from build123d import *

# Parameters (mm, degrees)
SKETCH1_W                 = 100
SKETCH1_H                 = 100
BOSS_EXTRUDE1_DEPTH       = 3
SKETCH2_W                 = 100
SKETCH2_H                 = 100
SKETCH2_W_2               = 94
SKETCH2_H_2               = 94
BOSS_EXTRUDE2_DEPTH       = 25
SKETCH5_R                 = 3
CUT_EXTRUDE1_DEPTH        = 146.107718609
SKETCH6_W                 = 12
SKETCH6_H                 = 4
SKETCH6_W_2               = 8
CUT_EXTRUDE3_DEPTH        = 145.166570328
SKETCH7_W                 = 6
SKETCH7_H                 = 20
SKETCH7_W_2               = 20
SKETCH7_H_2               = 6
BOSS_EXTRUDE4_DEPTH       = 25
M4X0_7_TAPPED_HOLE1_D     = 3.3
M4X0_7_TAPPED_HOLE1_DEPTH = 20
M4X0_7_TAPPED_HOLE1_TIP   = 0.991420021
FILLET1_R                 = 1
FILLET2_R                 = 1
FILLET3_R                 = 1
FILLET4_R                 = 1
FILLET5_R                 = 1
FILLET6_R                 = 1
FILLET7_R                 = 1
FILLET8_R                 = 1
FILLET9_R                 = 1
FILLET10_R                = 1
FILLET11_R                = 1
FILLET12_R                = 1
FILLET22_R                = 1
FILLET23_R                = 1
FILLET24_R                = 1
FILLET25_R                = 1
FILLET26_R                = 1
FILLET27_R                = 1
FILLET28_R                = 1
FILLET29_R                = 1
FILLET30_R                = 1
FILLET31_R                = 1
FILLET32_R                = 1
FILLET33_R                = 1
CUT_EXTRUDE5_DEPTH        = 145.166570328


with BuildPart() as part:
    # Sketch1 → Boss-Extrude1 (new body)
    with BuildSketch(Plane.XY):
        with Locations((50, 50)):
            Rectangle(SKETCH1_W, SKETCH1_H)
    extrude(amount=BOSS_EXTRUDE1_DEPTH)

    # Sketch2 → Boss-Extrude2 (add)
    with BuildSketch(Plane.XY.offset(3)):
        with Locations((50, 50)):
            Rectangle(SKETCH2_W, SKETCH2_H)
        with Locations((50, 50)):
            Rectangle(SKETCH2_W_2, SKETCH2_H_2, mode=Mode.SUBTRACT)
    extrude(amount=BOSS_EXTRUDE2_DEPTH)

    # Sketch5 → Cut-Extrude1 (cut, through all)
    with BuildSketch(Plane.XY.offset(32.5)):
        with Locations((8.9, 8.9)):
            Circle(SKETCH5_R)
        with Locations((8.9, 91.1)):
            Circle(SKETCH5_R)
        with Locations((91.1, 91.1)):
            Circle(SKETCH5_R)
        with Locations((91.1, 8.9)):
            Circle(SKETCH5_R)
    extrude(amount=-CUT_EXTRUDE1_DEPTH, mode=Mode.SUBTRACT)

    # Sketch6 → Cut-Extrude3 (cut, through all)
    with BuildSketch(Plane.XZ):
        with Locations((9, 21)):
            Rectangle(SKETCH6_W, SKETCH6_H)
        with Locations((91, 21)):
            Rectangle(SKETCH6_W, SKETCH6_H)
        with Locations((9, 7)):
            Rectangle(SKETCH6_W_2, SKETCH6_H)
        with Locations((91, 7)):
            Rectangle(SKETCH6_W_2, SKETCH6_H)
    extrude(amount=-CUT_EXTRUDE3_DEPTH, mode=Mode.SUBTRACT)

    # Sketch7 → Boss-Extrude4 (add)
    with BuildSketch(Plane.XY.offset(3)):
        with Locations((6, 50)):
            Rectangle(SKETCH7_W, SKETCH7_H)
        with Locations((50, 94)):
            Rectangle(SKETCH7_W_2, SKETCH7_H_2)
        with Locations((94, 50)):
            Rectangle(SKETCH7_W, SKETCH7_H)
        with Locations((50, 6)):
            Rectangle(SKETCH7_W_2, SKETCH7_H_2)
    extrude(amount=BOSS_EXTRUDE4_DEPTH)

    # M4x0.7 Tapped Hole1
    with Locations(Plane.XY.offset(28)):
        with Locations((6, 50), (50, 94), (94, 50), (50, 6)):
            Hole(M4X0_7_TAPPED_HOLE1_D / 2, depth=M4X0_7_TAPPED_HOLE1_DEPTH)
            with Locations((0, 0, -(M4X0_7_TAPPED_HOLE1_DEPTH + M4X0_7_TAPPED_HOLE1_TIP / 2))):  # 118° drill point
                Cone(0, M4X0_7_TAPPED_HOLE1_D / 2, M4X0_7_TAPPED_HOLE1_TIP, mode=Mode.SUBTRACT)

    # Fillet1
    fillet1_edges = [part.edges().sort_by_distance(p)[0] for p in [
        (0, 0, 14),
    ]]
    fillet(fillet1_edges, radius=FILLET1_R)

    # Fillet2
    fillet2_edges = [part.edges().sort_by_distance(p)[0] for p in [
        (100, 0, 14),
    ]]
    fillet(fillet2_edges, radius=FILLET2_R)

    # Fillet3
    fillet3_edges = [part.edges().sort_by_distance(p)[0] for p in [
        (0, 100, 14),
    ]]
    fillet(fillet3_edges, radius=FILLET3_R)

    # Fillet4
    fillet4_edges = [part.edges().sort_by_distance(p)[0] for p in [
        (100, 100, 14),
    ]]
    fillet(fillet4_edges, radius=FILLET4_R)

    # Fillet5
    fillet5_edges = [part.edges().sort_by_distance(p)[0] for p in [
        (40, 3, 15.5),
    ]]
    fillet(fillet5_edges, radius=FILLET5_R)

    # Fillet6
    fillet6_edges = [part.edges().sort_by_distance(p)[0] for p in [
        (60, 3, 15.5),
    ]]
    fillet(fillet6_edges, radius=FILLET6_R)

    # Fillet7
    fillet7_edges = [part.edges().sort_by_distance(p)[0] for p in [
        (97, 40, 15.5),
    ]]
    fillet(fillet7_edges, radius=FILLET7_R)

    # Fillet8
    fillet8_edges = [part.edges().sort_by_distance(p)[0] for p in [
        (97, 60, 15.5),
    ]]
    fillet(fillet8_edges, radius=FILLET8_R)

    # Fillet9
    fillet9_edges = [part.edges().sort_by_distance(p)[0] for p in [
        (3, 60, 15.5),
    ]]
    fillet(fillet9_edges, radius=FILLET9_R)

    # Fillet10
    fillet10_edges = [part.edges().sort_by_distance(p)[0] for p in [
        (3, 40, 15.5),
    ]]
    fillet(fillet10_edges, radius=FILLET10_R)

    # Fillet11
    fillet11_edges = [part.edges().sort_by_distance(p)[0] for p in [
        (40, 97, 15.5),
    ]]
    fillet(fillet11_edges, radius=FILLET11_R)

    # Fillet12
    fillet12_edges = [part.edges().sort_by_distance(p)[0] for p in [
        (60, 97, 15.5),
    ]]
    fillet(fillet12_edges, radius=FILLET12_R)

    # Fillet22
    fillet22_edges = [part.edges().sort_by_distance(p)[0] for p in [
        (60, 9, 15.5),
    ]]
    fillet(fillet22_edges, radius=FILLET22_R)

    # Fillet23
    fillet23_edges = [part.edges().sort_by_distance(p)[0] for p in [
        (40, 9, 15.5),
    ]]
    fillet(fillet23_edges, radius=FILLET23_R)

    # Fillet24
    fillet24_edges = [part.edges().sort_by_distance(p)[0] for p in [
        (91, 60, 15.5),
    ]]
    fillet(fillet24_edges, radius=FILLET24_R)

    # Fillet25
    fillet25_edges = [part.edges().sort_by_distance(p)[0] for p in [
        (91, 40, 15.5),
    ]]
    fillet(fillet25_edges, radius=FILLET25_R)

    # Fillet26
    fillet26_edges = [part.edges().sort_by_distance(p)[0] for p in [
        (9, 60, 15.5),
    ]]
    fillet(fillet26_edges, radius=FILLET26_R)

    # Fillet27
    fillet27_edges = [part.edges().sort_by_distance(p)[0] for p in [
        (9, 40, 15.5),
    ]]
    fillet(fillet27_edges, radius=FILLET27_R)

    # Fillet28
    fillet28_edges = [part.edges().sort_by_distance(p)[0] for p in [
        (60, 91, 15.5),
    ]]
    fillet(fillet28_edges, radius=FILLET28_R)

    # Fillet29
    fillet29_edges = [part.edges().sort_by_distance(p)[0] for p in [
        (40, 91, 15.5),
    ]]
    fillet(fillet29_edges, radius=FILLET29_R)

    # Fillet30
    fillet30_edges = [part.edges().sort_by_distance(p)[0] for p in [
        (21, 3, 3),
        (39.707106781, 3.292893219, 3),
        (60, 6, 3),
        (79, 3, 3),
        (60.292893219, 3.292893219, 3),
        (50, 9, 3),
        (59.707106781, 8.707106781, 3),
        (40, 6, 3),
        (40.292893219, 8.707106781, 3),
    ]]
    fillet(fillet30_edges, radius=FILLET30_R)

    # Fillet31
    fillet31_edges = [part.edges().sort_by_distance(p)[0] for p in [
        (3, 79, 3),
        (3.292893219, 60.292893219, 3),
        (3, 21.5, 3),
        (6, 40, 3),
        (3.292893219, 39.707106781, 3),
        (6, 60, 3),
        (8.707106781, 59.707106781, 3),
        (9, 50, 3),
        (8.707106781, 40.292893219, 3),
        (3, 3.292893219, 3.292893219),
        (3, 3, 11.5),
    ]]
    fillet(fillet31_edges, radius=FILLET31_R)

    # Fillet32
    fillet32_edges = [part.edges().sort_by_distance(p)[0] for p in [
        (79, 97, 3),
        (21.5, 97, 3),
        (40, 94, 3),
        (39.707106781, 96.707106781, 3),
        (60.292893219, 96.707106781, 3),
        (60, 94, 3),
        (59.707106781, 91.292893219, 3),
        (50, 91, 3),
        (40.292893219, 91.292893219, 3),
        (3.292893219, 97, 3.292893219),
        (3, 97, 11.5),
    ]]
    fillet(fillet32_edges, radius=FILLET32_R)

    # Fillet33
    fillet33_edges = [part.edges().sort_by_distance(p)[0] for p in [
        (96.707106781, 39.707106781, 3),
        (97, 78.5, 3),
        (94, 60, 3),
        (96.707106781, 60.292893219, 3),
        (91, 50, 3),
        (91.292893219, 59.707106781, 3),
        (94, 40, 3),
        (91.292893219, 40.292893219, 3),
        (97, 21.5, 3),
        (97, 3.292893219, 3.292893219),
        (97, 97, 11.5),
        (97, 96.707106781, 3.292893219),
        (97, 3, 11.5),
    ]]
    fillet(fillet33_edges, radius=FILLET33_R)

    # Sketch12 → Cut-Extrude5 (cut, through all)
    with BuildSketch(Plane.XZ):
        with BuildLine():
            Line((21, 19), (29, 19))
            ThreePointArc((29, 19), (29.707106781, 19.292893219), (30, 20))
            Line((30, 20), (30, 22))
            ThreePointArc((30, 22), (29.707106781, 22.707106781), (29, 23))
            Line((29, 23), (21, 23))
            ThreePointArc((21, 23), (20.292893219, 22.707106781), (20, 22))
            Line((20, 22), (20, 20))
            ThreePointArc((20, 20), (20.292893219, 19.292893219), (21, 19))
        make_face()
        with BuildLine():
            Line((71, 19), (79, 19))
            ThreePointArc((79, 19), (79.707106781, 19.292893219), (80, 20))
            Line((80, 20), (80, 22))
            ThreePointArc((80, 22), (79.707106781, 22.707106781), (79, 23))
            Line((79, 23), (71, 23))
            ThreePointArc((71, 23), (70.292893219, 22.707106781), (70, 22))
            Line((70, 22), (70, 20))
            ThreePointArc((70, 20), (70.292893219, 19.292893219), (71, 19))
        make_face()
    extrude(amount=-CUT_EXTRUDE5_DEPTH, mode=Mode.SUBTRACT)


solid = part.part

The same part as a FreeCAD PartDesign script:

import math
import FreeCAD as App
import Part
import Sketcher

V = App.Vector
Q = App.Units.Quantity


def edges_at(feature, points):
    """Names of the edges that pass closest to the given points."""
    edges = feature.Shape.Edges
    near = lambda p: min(range(len(edges)), key=lambda i: edges[i].distToShape(Part.Vertex(*p))[0])
    return sorted({f"Edge{near(p) + 1}" for p in points})

doc = App.newDocument("Part")
body = doc.addObject("PartDesign::Body", "Body")

# Sketch on XY plane
sketch1 = doc.addObject("Sketcher::SketchObject", "Sketch")
body.addObject(sketch1)
sketch1.AttachmentSupport = (doc.XY_Plane, [""])
sketch1.MapMode = "FlatFace"
sketch1.addGeometry([
    Part.LineSegment(V(0, 100, 0), V(0, 0, 0)),
    Part.LineSegment(V(0, 0, 0), V(100, 0, 0)),
    Part.LineSegment(V(100, 0, 0), V(100, 100, 0)),
    Part.LineSegment(V(100, 100, 0), V(0, 100, 0)),
], False)
sketch1.addConstraint([
    Sketcher.Constraint("Coincident", 0, 2, 1, 1),
    Sketcher.Constraint("Coincident", 1, 2, 2, 1),
    Sketcher.Constraint("Coincident", 2, 2, 3, 1),
    Sketcher.Constraint("Coincident", 3, 2, 0, 1),
    Sketcher.Constraint("Vertical", 0),
    Sketcher.Constraint("Horizontal", 1),
    Sketcher.Constraint("Vertical", 2),
    Sketcher.Constraint("Horizontal", 3),
    Sketcher.Constraint("Coincident", 0, 2, -1, 1),
    Sketcher.Constraint("Equal", 3, 0),
    Sketcher.Constraint("DistanceX", 1, 1, 1, 2, Q("100 mm")),
])
pad1 = doc.addObject("PartDesign::Pad", "Pad")
body.addObject(pad1)
pad1.Profile = sketch1
pad1.Length = 3

# Sketch on XY plane
sketch2 = doc.addObject("Sketcher::SketchObject", "Sketch001")
body.addObject(sketch2)
sketch2.AttachmentSupport = (doc.XY_Plane, [""])
sketch2.MapMode = "FlatFace"
sketch2.AttachmentOffset = App.Placement(V(0, 0, 3), App.Rotation())
sketch2.addGeometry([
    Part.LineSegment(V(0, 100, 0), V(0, 0, 0)),  # 0
    Part.LineSegment(V(0, 0, 0), V(100, 0, 0)),  # 1
    Part.LineSegment(V(100, 0, 0), V(100, 100, 0)),  # 2
    Part.LineSegment(V(100, 100, 0), V(0, 100, 0)),  # 3
    Part.LineSegment(V(97, 3, 0), V(3, 3, 0)),  # 4
    Part.LineSegment(V(3, 3, 0), V(3, 97, 0)),  # 5
    Part.LineSegment(V(3, 97, 0), V(97, 97, 0)),  # 6
    Part.LineSegment(V(97, 97, 0), V(97, 3, 0)),  # 7
], False)
sketch2.addConstraint([
    Sketcher.Constraint("Coincident", 0, 2, 1, 1),
    Sketcher.Constraint("Coincident", 1, 2, 2, 1),
    Sketcher.Constraint("Coincident", 2, 2, 3, 1),
    Sketcher.Constraint("Coincident", 3, 2, 0, 1),
    Sketcher.Constraint("Coincident", 4, 2, 5, 1),
    Sketcher.Constraint("Coincident", 5, 2, 6, 1),
    Sketcher.Constraint("Coincident", 6, 2, 7, 1),
    Sketcher.Constraint("Coincident", 7, 2, 4, 1),
    Sketcher.Constraint("Vertical", 0),
    Sketcher.Constraint("Horizontal", 1),
    Sketcher.Constraint("Vertical", 2),
    Sketcher.Constraint("Horizontal", 3),
    Sketcher.Constraint("Horizontal", 4),
    Sketcher.Constraint("Vertical", 5),
    Sketcher.Constraint("Horizontal", 6),
    Sketcher.Constraint("Vertical", 7),
    Sketcher.Constraint("Coincident", 0, 2, -1, 1),
    Sketcher.Constraint("Equal", 3, 0),
    Sketcher.Constraint("Equal", 6, 5),
    Sketcher.Constraint("DistanceX", 1, 1, 1, 2, Q("100 mm")),
    Sketcher.Constraint("DistanceX", 4, 2, 4, 1, Q("94 mm")),
    Sketcher.Constraint("DistanceX", -1, 1, 4, 2, Q("3 mm")),
    Sketcher.Constraint("DistanceY", -1, 1, 4, 2, Q("3 mm")),
])
pad2 = doc.addObject("PartDesign::Pad", "Pad001")
body.addObject(pad2)
pad2.Profile = sketch2
pad2.Length = 25

# Sketch on XY plane
sketch3 = doc.addObject("Sketcher::SketchObject", "Sketch002")
body.addObject(sketch3)
sketch3.AttachmentSupport = (doc.XY_Plane, [""])
sketch3.MapMode = "FlatFace"
sketch3.AttachmentOffset = App.Placement(V(0, 0, 32.5), App.Rotation())
sketch3.addGeometry([
    Part.Circle(V(8.9, 8.9, 0), V(0, 0, 1), 3),
    Part.Circle(V(8.9, 91.1, 0), V(0, 0, 1), 3),
    Part.Circle(V(91.1, 91.1, 0), V(0, 0, 1), 3),
    Part.Circle(V(91.1, 8.9, 0), V(0, 0, 1), 3),
], False)
sketch3.addConstraint([
    Sketcher.Constraint("Equal", 0, 1),
    Sketcher.Constraint("Equal", 1, 2),
    Sketcher.Constraint("Equal", 2, 3),
    Sketcher.Constraint("Horizontal", 1, 3, 2, 3),
    Sketcher.Constraint("Horizontal", 0, 3, 3, 3),
    Sketcher.Constraint("Vertical", 0, 3, 1, 3),
    Sketcher.Constraint("Vertical", 2, 3, 3, 3),
    Sketcher.Constraint("Diameter", 0, Q("6 mm")),
    Sketcher.Constraint("DistanceX", -1, 1, 0, 3, Q("8.9 mm")),
    Sketcher.Constraint("DistanceY", -1, 1, 0, 3, Q("8.9 mm")),
    Sketcher.Constraint("DistanceY", -1, 1, 1, 3, Q("91.1 mm")),
    Sketcher.Constraint("DistanceX", -1, 1, 2, 3, Q("91.1 mm")),
])
pocket1 = doc.addObject("PartDesign::Pocket", "Pocket")
body.addObject(pocket1)
pocket1.Profile = sketch3
pocket1.Type = "ThroughAll"

# Sketch on XZ plane
sketch4 = doc.addObject("Sketcher::SketchObject", "Sketch003")
body.addObject(sketch4)
sketch4.AttachmentSupport = (doc.XZ_Plane, [""])
sketch4.MapMode = "FlatFace"
sketch4.addGeometry([
    Part.LineSegment(V(3, 23, 0), V(3, 19, 0)),  # 0
    Part.LineSegment(V(3, 19, 0), V(15, 19, 0)),  # 1
    Part.LineSegment(V(15, 19, 0), V(15, 23, 0)),  # 2
    Part.LineSegment(V(15, 23, 0), V(3, 23, 0)),  # 3
    Part.LineSegment(V(85, 23, 0), V(85, 19, 0)),  # 4
    Part.LineSegment(V(85, 19, 0), V(97, 19, 0)),  # 5
    Part.LineSegment(V(97, 19, 0), V(97, 23, 0)),  # 6
    Part.LineSegment(V(97, 23, 0), V(85, 23, 0)),  # 7
    Part.LineSegment(V(5, 9, 0), V(5, 5, 0)),  # 8
    Part.LineSegment(V(5, 5, 0), V(13, 5, 0)),  # 9
    Part.LineSegment(V(13, 5, 0), V(13, 9, 0)),  # 10
    Part.LineSegment(V(13, 9, 0), V(5, 9, 0)),  # 11
    Part.LineSegment(V(87, 9, 0), V(87, 5, 0)),  # 12
    Part.LineSegment(V(87, 5, 0), V(95, 5, 0)),  # 13
    Part.LineSegment(V(95, 5, 0), V(95, 9, 0)),  # 14
    Part.LineSegment(V(95, 9, 0), V(87, 9, 0)),  # 15
], False)
sketch4.addConstraint([
    Sketcher.Constraint("Coincident", 0, 2, 1, 1),
    Sketcher.Constraint("Coincident", 1, 2, 2, 1),
    Sketcher.Constraint("Coincident", 2, 2, 3, 1),
    Sketcher.Constraint("Coincident", 3, 2, 0, 1),
    Sketcher.Constraint("Coincident", 4, 2, 5, 1),
    Sketcher.Constraint("Coincident", 5, 2, 6, 1),
    Sketcher.Constraint("Coincident", 6, 2, 7, 1),
    Sketcher.Constraint("Coincident", 7, 2, 4, 1),
    Sketcher.Constraint("Coincident", 8, 2, 9, 1),
    Sketcher.Constraint("Coincident", 9, 2, 10, 1),
    Sketcher.Constraint("Coincident", 10, 2, 11, 1),
    Sketcher.Constraint("Coincident", 11, 2, 8, 1),
    Sketcher.Constraint("Coincident", 12, 2, 13, 1),
    Sketcher.Constraint("Coincident", 13, 2, 14, 1),
    Sketcher.Constraint("Coincident", 14, 2, 15, 1),
    Sketcher.Constraint("Coincident", 15, 2, 12, 1),
    Sketcher.Constraint("Vertical", 0),
    Sketcher.Constraint("Horizontal", 1),
    Sketcher.Constraint("Vertical", 2),
    Sketcher.Constraint("Horizontal", 3),
    Sketcher.Constraint("Vertical", 4),
    Sketcher.Constraint("Horizontal", 5),
    Sketcher.Constraint("Vertical", 6),
    Sketcher.Constraint("Horizontal", 7),
    Sketcher.Constraint("Vertical", 8),
    Sketcher.Constraint("Horizontal", 9),
    Sketcher.Constraint("Vertical", 10),
    Sketcher.Constraint("Horizontal", 11),
    Sketcher.Constraint("Vertical", 12),
    Sketcher.Constraint("Horizontal", 13),
    Sketcher.Constraint("Vertical", 14),
    Sketcher.Constraint("Horizontal", 15),
    Sketcher.Constraint("Horizontal", 1, 2, 4, 2),
    Sketcher.Constraint("Horizontal", 3, 2, 6, 2),
    Sketcher.Constraint("Horizontal", 9, 2, 12, 2),
    Sketcher.Constraint("Horizontal", 11, 2, 14, 2),
    Sketcher.Constraint("Equal", 3, 5),
    Sketcher.Constraint("Equal", 11, 13),
    Sketcher.Constraint("Equal", 6, 8),
    Sketcher.Constraint("DistanceX", 1, 1, 1, 2, Q("12 mm")),
    Sketcher.Constraint("DistanceX", 9, 1, 9, 2, Q("8 mm")),
    Sketcher.Constraint("DistanceY", 0, 2, 0, 1, Q("4 mm")),
    Sketcher.Constraint("DistanceX", -1, 1, 0, 2, Q("3 mm")),
    Sketcher.Constraint("DistanceY", -1, 1, 0, 2, Q("19 mm")),
    Sketcher.Constraint("DistanceX", -1, 1, 4, 2, Q("85 mm")),
    Sketcher.Constraint("DistanceX", -1, 1, 8, 2, Q("5 mm")),
    Sketcher.Constraint("DistanceY", -1, 1, 8, 2, Q("5 mm")),
    Sketcher.Constraint("DistanceX", -1, 1, 12, 2, Q("87 mm")),
])
pocket2 = doc.addObject("PartDesign::Pocket", "Pocket001")
body.addObject(pocket2)
pocket2.Profile = sketch4
pocket2.Type = "ThroughAll"

# Sketch on XY plane
sketch5 = doc.addObject("Sketcher::SketchObject", "Sketch004")
body.addObject(sketch5)
sketch5.AttachmentSupport = (doc.XY_Plane, [""])
sketch5.MapMode = "FlatFace"
sketch5.AttachmentOffset = App.Placement(V(0, 0, 3), App.Rotation())
sketch5.addGeometry([
    Part.LineSegment(V(3, 60, 0), V(3, 40, 0)),  # 0
    Part.LineSegment(V(3, 40, 0), V(9, 40, 0)),  # 1
    Part.LineSegment(V(9, 40, 0), V(9, 60, 0)),  # 2
    Part.LineSegment(V(9, 60, 0), V(3, 60, 0)),  # 3
    Part.LineSegment(V(40, 97, 0), V(40, 91, 0)),  # 4
    Part.LineSegment(V(40, 91, 0), V(60, 91, 0)),  # 5
    Part.LineSegment(V(60, 91, 0), V(60, 97, 0)),  # 6
    Part.LineSegment(V(60, 97, 0), V(40, 97, 0)),  # 7
    Part.LineSegment(V(91, 60, 0), V(91, 40, 0)),  # 8
    Part.LineSegment(V(91, 40, 0), V(97, 40, 0)),  # 9
    Part.LineSegment(V(97, 40, 0), V(97, 60, 0)),  # 10
    Part.LineSegment(V(97, 60, 0), V(91, 60, 0)),  # 11
    Part.LineSegment(V(40, 9, 0), V(40, 3, 0)),  # 12
    Part.LineSegment(V(40, 3, 0), V(60, 3, 0)),  # 13
    Part.LineSegment(V(60, 3, 0), V(60, 9, 0)),  # 14
    Part.LineSegment(V(60, 9, 0), V(40, 9, 0)),  # 15
], False)
sketch5.addConstraint([
    Sketcher.Constraint("Coincident", 0, 2, 1, 1),
    Sketcher.Constraint("Coincident", 1, 2, 2, 1),
    Sketcher.Constraint("Coincident", 2, 2, 3, 1),
    Sketcher.Constraint("Coincident", 3, 2, 0, 1),
    Sketcher.Constraint("Coincident", 4, 2, 5, 1),
    Sketcher.Constraint("Coincident", 5, 2, 6, 1),
    Sketcher.Constraint("Coincident", 6, 2, 7, 1),
    Sketcher.Constraint("Coincident", 7, 2, 4, 1),
    Sketcher.Constraint("Coincident", 8, 2, 9, 1),
    Sketcher.Constraint("Coincident", 9, 2, 10, 1),
    Sketcher.Constraint("Coincident", 10, 2, 11, 1),
    Sketcher.Constraint("Coincident", 11, 2, 8, 1),
    Sketcher.Constraint("Coincident", 12, 2, 13, 1),
    Sketcher.Constraint("Coincident", 13, 2, 14, 1),
    Sketcher.Constraint("Coincident", 14, 2, 15, 1),
    Sketcher.Constraint("Coincident", 15, 2, 12, 1),
    Sketcher.Constraint("Vertical", 0),
    Sketcher.Constraint("Horizontal", 1),
    Sketcher.Constraint("Vertical", 2),
    Sketcher.Constraint("Horizontal", 3),
    Sketcher.Constraint("Vertical", 4),
    Sketcher.Constraint("Horizontal", 5),
    Sketcher.Constraint("Vertical", 6),
    Sketcher.Constraint("Horizontal", 7),
    Sketcher.Constraint("Vertical", 8),
    Sketcher.Constraint("Horizontal", 9),
    Sketcher.Constraint("Vertical", 10),
    Sketcher.Constraint("Horizontal", 11),
    Sketcher.Constraint("Vertical", 12),
    Sketcher.Constraint("Horizontal", 13),
    Sketcher.Constraint("Vertical", 14),
    Sketcher.Constraint("Horizontal", 15),
    Sketcher.Constraint("Horizontal", 1, 2, 8, 2),
    Sketcher.Constraint("Horizontal", 3, 2, 10, 2),
    Sketcher.Constraint("Vertical", 7, 2, 12, 2),
    Sketcher.Constraint("Vertical", 6, 2, 13, 2),
    Sketcher.Constraint("Equal", 3, 9),
    Sketcher.Constraint("Equal", 15, 0),
    Sketcher.Constraint("Equal", 11, 4),
    Sketcher.Constraint("Equal", 6, 12),
    Sketcher.Constraint("DistanceX", 1, 1, 1, 2, Q("6 mm")),
    Sketcher.Constraint("DistanceX", 5, 1, 5, 2, Q("20 mm")),
    Sketcher.Constraint("DistanceX", -1, 1, 0, 2, Q("3 mm")),
    Sketcher.Constraint("DistanceY", -1, 1, 0, 2, Q("40 mm")),
    Sketcher.Constraint("DistanceX", -1, 1, 4, 2, Q("40 mm")),
    Sketcher.Constraint("DistanceY", -1, 1, 4, 2, Q("91 mm")),
    Sketcher.Constraint("DistanceX", -1, 1, 8, 2, Q("91 mm")),
    Sketcher.Constraint("DistanceY", -1, 1, 12, 2, Q("3 mm")),
])
pad3 = doc.addObject("PartDesign::Pad", "Pad002")
body.addObject(pad3)
pad3.Profile = sketch5
pad3.Length = 25

# Sketch on XY plane
sketch6 = doc.addObject("Sketcher::SketchObject", "Sketch005")
body.addObject(sketch6)
sketch6.AttachmentSupport = (doc.XY_Plane, [""])
sketch6.MapMode = "FlatFace"
sketch6.AttachmentOffset = App.Placement(V(0, 0, 28), App.Rotation())
sketch6.addGeometry([
    Part.Circle(V(6, 50, 0), V(0, 0, 1), 1.6),
    Part.Circle(V(50, 94, 0), V(0, 0, 1), 1.6),
    Part.Circle(V(94, 50, 0), V(0, 0, 1), 1.6),
    Part.Circle(V(50, 6, 0), V(0, 0, 1), 1.6),
], False)
sketch6.addConstraint([
    Sketcher.Constraint("Equal", 0, 1),
    Sketcher.Constraint("Equal", 1, 2),
    Sketcher.Constraint("Equal", 2, 3),
    Sketcher.Constraint("Horizontal", 0, 3, 2, 3),
    Sketcher.Constraint("Vertical", 1, 3, 3, 3),
    Sketcher.Constraint("Diameter", 0, Q("3.3 mm")),
    Sketcher.Constraint("DistanceX", -1, 1, 0, 3, Q("6 mm")),
    Sketcher.Constraint("DistanceY", -1, 1, 0, 3, Q("50 mm")),
    Sketcher.Constraint("DistanceX", -1, 1, 1, 3, Q("50 mm")),
    Sketcher.Constraint("DistanceY", -1, 1, 1, 3, Q("94 mm")),
    Sketcher.Constraint("DistanceX", -1, 1, 2, 3, Q("94 mm")),
    Sketcher.Constraint("DistanceY", -1, 1, 3, 3, Q("6 mm")),
])
doc.recompute()
hole = doc.addObject("PartDesign::Hole", "Hole")
body.addObject(hole)
hole.Profile = sketch6
hole.ThreadType = "None"
hole.Diameter = 3.3
hole.DepthType = "Dimension"
hole.Depth = 20
hole.DrillPoint = "Angled"
hole.DrillPointAngle = 118
doc.recompute()

fillet = doc.addObject("PartDesign::Fillet", "Fillet")
body.addObject(fillet)
fillet.Base = (hole, edges_at(hole, [(0, 0, 14)]))
fillet.Radius = 1
doc.recompute()

fillet2 = doc.addObject("PartDesign::Fillet", "Fillet001")
body.addObject(fillet2)
fillet2.Base = (fillet, edges_at(fillet, [(100, 0, 14)]))
fillet2.Radius = 1
doc.recompute()

fillet3 = doc.addObject("PartDesign::Fillet", "Fillet002")
body.addObject(fillet3)
fillet3.Base = (fillet2, edges_at(fillet2, [(0, 100, 14)]))
fillet3.Radius = 1
doc.recompute()

fillet4 = doc.addObject("PartDesign::Fillet", "Fillet003")
body.addObject(fillet4)
fillet4.Base = (fillet3, edges_at(fillet3, [(100, 100, 14)]))
fillet4.Radius = 1
doc.recompute()

fillet5 = doc.addObject("PartDesign::Fillet", "Fillet004")
body.addObject(fillet5)
fillet5.Base = (fillet4, edges_at(fillet4, [(40, 3, 15.5)]))
fillet5.Radius = 1
doc.recompute()

fillet6 = doc.addObject("PartDesign::Fillet", "Fillet005")
body.addObject(fillet6)
fillet6.Base = (fillet5, edges_at(fillet5, [(60, 3, 15.5)]))
fillet6.Radius = 1
doc.recompute()

fillet7 = doc.addObject("PartDesign::Fillet", "Fillet006")
body.addObject(fillet7)
fillet7.Base = (fillet6, edges_at(fillet6, [(97, 40, 15.5)]))
fillet7.Radius = 1
doc.recompute()

fillet8 = doc.addObject("PartDesign::Fillet", "Fillet007")
body.addObject(fillet8)
fillet8.Base = (fillet7, edges_at(fillet7, [(97, 60, 15.5)]))
fillet8.Radius = 1
doc.recompute()

fillet9 = doc.addObject("PartDesign::Fillet", "Fillet008")
body.addObject(fillet9)
fillet9.Base = (fillet8, edges_at(fillet8, [(3, 60, 15.5)]))
fillet9.Radius = 1
doc.recompute()

fillet10 = doc.addObject("PartDesign::Fillet", "Fillet009")
body.addObject(fillet10)
fillet10.Base = (fillet9, edges_at(fillet9, [(3, 40, 15.5)]))
fillet10.Radius = 1
doc.recompute()

fillet11 = doc.addObject("PartDesign::Fillet", "Fillet010")
body.addObject(fillet11)
fillet11.Base = (fillet10, edges_at(fillet10, [(40, 97, 15.5)]))
fillet11.Radius = 1
doc.recompute()

fillet12 = doc.addObject("PartDesign::Fillet", "Fillet011")
body.addObject(fillet12)
fillet12.Base = (fillet11, edges_at(fillet11, [(60, 97, 15.5)]))
fillet12.Radius = 1
doc.recompute()

fillet13 = doc.addObject("PartDesign::Fillet", "Fillet012")
body.addObject(fillet13)
fillet13.Base = (fillet12, edges_at(fillet12, [(60, 9, 15.5)]))
fillet13.Radius = 1
doc.recompute()

fillet14 = doc.addObject("PartDesign::Fillet", "Fillet013")
body.addObject(fillet14)
fillet14.Base = (fillet13, edges_at(fillet13, [(40, 9, 15.5)]))
fillet14.Radius = 1
doc.recompute()

fillet15 = doc.addObject("PartDesign::Fillet", "Fillet014")
body.addObject(fillet15)
fillet15.Base = (fillet14, edges_at(fillet14, [(91, 60, 15.5)]))
fillet15.Radius = 1
doc.recompute()

fillet16 = doc.addObject("PartDesign::Fillet", "Fillet015")
body.addObject(fillet16)
fillet16.Base = (fillet15, edges_at(fillet15, [(91, 40, 15.5)]))
fillet16.Radius = 1
doc.recompute()

fillet17 = doc.addObject("PartDesign::Fillet", "Fillet016")
body.addObject(fillet17)
fillet17.Base = (fillet16, edges_at(fillet16, [(9, 60, 15.5)]))
fillet17.Radius = 1
doc.recompute()

fillet18 = doc.addObject("PartDesign::Fillet", "Fillet017")
body.addObject(fillet18)
fillet18.Base = (fillet17, edges_at(fillet17, [(9, 40, 15.5)]))
fillet18.Radius = 1
doc.recompute()

fillet19 = doc.addObject("PartDesign::Fillet", "Fillet018")
body.addObject(fillet19)
fillet19.Base = (fillet18, edges_at(fillet18, [(60, 91, 15.5)]))
fillet19.Radius = 1
doc.recompute()

fillet20 = doc.addObject("PartDesign::Fillet", "Fillet019")
body.addObject(fillet20)
fillet20.Base = (fillet19, edges_at(fillet19, [(40, 91, 15.5)]))
fillet20.Radius = 1
doc.recompute()

fillet21 = doc.addObject("PartDesign::Fillet", "Fillet020")
body.addObject(fillet21)
fillet21.Base = (fillet20, edges_at(fillet20, [
    (21, 3, 3),
    (39.707, 3.293, 3),
    (60, 6, 3),
    (79, 3, 3),
    (60.293, 3.293, 3),
    (50, 9, 3),
    (59.707, 8.707, 3),
    (40, 6, 3),
    (40.293, 8.707, 3),
]))
fillet21.Radius = 1
doc.recompute()

fillet22 = doc.addObject("PartDesign::Fillet", "Fillet021")
body.addObject(fillet22)
fillet22.Base = (fillet21, edges_at(fillet21, [
    (3, 79, 3),
    (3.293, 60.293, 3),
    (3, 21.5, 3),
    (6, 40, 3),
    (3.293, 39.707, 3),
    (6, 60, 3),
    (8.707, 59.707, 3),
    (9, 50, 3),
    (8.707, 40.293, 3),
    (3, 3.293, 3.293),
    (3, 3, 11.5),
]))
fillet22.Radius = 1
doc.recompute()

fillet23 = doc.addObject("PartDesign::Fillet", "Fillet022")
body.addObject(fillet23)
fillet23.Base = (fillet22, edges_at(fillet22, [
    (79, 97, 3),
    (21.5, 97, 3),
    (40, 94, 3),
    (39.707, 96.707, 3),
    (60.293, 96.707, 3),
    (60, 94, 3),
    (59.707, 91.293, 3),
    (50, 91, 3),
    (40.293, 91.293, 3),
    (3.293, 97, 3.293),
    (3, 97, 11.5),
]))
fillet23.Radius = 1
doc.recompute()

fillet24 = doc.addObject("PartDesign::Fillet", "Fillet023")
body.addObject(fillet24)
fillet24.Base = (fillet23, edges_at(fillet23, [
    (96.707, 39.707, 3),
    (97, 78.5, 3),
    (94, 60, 3),
    (96.707, 60.293, 3),
    (91, 50, 3),
    (91.293, 59.707, 3),
    (94, 40, 3),
    (91.293, 40.293, 3),
    (97, 21.5, 3),
    (97, 3.293, 3.293),
    (97, 97, 11.5),
    (97, 96.707, 3.293),
    (97, 3, 11.5),
]))
fillet24.Radius = 1

# Sketch on XZ plane
sketch7 = doc.addObject("Sketcher::SketchObject", "Sketch006")
body.addObject(sketch7)
sketch7.AttachmentSupport = (doc.XZ_Plane, [""])
sketch7.MapMode = "FlatFace"
sketch7.addGeometry([
    Part.LineSegment(V(21, 19, 0), V(29, 19, 0)),  # 0
    Part.ArcOfCircle(Part.Circle(V(29, 20, 0), V(0, 0, 1), 1), math.radians(-90), math.radians(0)),  # 1
    Part.LineSegment(V(30, 20, 0), V(30, 22, 0)),  # 2
    Part.ArcOfCircle(Part.Circle(V(29, 22, 0), V(0, 0, 1), 1), math.radians(0), math.radians(90)),  # 3
    Part.LineSegment(V(29, 23, 0), V(21, 23, 0)),  # 4
    Part.ArcOfCircle(Part.Circle(V(21, 22, 0), V(0, 0, 1), 1), math.radians(90), math.radians(180)),  # 5
    Part.LineSegment(V(20, 22, 0), V(20, 20, 0)),  # 6
    Part.ArcOfCircle(Part.Circle(V(21, 20, 0), V(0, 0, 1), 1), math.radians(-180), math.radians(-90)),  # 7
    Part.LineSegment(V(71, 19, 0), V(79, 19, 0)),  # 8
    Part.ArcOfCircle(Part.Circle(V(79, 20, 0), V(0, 0, 1), 1), math.radians(-90), math.radians(0)),  # 9
    Part.LineSegment(V(80, 20, 0), V(80, 22, 0)),  # 10
    Part.ArcOfCircle(Part.Circle(V(79, 22, 0), V(0, 0, 1), 1), math.radians(0), math.radians(90)),  # 11
    Part.LineSegment(V(79, 23, 0), V(71, 23, 0)),  # 12
    Part.ArcOfCircle(Part.Circle(V(71, 22, 0), V(0, 0, 1), 1), math.radians(90), math.radians(180)),  # 13
    Part.LineSegment(V(70, 22, 0), V(70, 20, 0)),  # 14
    Part.ArcOfCircle(Part.Circle(V(71, 20, 0), V(0, 0, 1), 1), math.radians(-180), math.radians(-90)),  # 15
], False)
sketch7.addConstraint([
    Sketcher.Constraint("Tangent", 0, 2, 1, 1),
    Sketcher.Constraint("Tangent", 1, 2, 2, 1),
    Sketcher.Constraint("Tangent", 2, 2, 3, 1),
    Sketcher.Constraint("Tangent", 3, 2, 4, 1),
    Sketcher.Constraint("Tangent", 4, 2, 5, 1),
    Sketcher.Constraint("Tangent", 5, 2, 6, 1),
    Sketcher.Constraint("Tangent", 6, 2, 7, 1),
    Sketcher.Constraint("Tangent", 7, 2, 0, 1),
    Sketcher.Constraint("Tangent", 8, 2, 9, 1),
    Sketcher.Constraint("Tangent", 9, 2, 10, 1),
    Sketcher.Constraint("Tangent", 10, 2, 11, 1),
    Sketcher.Constraint("Tangent", 11, 2, 12, 1),
    Sketcher.Constraint("Tangent", 12, 2, 13, 1),
    Sketcher.Constraint("Tangent", 13, 2, 14, 1),
    Sketcher.Constraint("Tangent", 14, 2, 15, 1),
    Sketcher.Constraint("Tangent", 15, 2, 8, 1),
    Sketcher.Constraint("Horizontal", 0),
    Sketcher.Constraint("Vertical", 2),
    Sketcher.Constraint("Horizontal", 4),
    Sketcher.Constraint("Vertical", 6),
    Sketcher.Constraint("Horizontal", 8),
    Sketcher.Constraint("Vertical", 10),
    Sketcher.Constraint("Horizontal", 12),
    Sketcher.Constraint("Vertical", 14),
    Sketcher.Constraint("Equal", 1, 3),
    Sketcher.Constraint("Equal", 3, 5),
    Sketcher.Constraint("Equal", 5, 7),
    Sketcher.Constraint("Equal", 7, 9),
    Sketcher.Constraint("Equal", 9, 11),
    Sketcher.Constraint("Equal", 11, 13),
    Sketcher.Constraint("Equal", 13, 15),
    Sketcher.Constraint("Horizontal", 7, 3, 9, 3),
    Sketcher.Constraint("Horizontal", 5, 3, 11, 3),
    Sketcher.Constraint("Equal", 4, 8),
    Sketcher.Constraint("Radius", 1, Q("1 mm")),
    Sketcher.Constraint("DistanceX", 0, 1, 0, 2, Q("8 mm")),
    Sketcher.Constraint("DistanceY", 2, 1, 2, 2, Q("2 mm")),
    Sketcher.Constraint("DistanceX", -1, 1, 1, 3, Q("29 mm")),
    Sketcher.Constraint("DistanceY", -1, 1, 1, 3, Q("20 mm")),
    Sketcher.Constraint("DistanceX", -1, 1, 9, 3, Q("79 mm")),
])
pocket3 = doc.addObject("PartDesign::Pocket", "Pocket002")
body.addObject(pocket3)
pocket3.Profile = sketch7
pocket3.Type = "ThroughAll"

doc.recompute()
